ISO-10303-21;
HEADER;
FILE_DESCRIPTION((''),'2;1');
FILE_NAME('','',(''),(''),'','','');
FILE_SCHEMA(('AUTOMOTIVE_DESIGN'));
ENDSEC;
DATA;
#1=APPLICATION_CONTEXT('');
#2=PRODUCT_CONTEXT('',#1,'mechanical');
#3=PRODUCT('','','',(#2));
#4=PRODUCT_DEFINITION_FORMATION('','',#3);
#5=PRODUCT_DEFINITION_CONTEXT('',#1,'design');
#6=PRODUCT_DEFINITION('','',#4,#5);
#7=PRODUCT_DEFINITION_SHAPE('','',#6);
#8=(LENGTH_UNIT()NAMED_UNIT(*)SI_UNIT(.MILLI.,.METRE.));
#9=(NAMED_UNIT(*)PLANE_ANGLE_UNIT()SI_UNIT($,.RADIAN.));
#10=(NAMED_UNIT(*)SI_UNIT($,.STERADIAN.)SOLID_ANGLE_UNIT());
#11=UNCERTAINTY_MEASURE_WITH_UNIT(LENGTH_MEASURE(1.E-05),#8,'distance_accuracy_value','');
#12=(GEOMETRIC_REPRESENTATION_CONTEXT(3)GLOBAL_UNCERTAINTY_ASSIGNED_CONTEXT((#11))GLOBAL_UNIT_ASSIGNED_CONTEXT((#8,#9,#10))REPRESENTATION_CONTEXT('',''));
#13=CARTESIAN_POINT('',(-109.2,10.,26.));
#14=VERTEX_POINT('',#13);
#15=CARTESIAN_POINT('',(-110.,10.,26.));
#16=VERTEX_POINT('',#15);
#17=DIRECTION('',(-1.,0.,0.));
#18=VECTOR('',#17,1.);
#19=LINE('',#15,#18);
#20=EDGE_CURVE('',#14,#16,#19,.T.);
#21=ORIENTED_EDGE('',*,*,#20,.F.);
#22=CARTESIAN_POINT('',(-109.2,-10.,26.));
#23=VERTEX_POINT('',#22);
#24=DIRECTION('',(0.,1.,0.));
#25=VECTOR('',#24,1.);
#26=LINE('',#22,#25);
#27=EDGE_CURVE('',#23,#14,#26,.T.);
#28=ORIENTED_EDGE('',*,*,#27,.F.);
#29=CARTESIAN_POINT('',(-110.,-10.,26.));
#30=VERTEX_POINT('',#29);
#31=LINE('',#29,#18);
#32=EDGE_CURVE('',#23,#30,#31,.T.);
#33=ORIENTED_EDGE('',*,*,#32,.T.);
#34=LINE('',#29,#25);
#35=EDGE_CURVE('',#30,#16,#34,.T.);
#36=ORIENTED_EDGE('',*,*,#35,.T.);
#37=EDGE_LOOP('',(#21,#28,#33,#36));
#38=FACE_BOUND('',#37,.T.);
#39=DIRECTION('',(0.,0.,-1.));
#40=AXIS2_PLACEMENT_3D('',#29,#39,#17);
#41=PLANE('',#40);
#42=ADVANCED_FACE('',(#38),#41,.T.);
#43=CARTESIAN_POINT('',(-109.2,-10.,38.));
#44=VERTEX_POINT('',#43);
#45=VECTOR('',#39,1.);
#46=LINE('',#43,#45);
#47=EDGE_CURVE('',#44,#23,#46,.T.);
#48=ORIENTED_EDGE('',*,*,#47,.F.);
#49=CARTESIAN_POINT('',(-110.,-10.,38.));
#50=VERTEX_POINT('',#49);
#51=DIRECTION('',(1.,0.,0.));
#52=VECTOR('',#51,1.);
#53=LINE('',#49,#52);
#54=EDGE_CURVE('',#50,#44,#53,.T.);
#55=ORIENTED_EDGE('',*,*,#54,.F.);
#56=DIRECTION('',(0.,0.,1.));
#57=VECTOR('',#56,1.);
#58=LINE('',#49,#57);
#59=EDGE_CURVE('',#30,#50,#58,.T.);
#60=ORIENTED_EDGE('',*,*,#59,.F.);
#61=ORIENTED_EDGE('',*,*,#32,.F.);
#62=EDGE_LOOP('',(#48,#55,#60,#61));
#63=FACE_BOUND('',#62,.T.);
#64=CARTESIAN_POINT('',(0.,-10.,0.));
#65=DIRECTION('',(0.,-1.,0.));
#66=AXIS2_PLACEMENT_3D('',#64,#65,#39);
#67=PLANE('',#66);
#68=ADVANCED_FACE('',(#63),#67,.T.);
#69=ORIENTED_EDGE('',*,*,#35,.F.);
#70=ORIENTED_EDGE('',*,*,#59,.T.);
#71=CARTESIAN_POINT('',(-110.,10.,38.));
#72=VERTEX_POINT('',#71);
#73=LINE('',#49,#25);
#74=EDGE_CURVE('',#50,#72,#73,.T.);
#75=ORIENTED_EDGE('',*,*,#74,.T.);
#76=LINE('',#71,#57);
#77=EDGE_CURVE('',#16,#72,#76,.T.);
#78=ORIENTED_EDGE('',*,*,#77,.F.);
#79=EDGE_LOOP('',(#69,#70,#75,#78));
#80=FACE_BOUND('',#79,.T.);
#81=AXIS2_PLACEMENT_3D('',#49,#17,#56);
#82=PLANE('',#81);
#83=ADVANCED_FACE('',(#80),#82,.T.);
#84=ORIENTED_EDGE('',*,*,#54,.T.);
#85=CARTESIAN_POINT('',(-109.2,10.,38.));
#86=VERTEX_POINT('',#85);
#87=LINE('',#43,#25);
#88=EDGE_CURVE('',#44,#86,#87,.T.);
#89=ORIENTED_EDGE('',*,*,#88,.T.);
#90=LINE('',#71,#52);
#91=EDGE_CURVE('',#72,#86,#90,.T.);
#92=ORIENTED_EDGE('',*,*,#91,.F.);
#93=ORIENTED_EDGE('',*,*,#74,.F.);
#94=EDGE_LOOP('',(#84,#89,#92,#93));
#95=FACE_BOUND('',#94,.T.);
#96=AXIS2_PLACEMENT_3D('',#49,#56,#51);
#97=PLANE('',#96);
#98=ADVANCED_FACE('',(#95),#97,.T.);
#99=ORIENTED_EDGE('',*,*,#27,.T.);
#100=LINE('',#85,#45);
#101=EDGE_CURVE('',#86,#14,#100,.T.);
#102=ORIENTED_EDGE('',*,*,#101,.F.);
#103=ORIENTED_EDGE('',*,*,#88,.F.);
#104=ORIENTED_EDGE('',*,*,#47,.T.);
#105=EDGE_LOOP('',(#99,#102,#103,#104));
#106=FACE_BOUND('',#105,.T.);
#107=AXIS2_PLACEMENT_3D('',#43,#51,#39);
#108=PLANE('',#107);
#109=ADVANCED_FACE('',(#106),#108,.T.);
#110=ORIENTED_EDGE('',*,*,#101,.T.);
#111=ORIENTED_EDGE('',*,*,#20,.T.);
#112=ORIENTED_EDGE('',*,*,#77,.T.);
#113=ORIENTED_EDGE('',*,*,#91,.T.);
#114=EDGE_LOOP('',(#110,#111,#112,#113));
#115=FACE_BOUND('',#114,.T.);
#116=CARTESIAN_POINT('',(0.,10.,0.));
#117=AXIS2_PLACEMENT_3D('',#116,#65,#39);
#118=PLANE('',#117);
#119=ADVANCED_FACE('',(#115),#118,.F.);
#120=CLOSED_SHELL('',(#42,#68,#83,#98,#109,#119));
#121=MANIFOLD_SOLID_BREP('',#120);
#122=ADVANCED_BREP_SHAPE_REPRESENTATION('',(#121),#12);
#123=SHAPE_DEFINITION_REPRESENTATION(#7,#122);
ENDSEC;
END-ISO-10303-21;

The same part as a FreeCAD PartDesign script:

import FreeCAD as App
import Part
import Sketcher
from FreeCAD import Vector


def add_polygon(sketch, points):
    """Adds a closed chain of lines whose ends are joined by coincident constraints."""
    first, n = sketch.GeometryCount, len(points)
    for a, b in zip(points, points[1:] + points[:1]):
        sketch.addGeometry(Part.LineSegment(App.Vector(*a, 0), App.Vector(*b, 0)), False)
    for i in range(n):
        sketch.addConstraint(Sketcher.Constraint("Coincident", first + i, 2, first + (i + 1) % n, 1))

doc = App.newDocument("Part")
body = doc.addObject("PartDesign::Body", "Body")

sketch1 = body.newObject("Sketcher::SketchObject", "Sketch")
sketch1.AttachmentSupport = (doc.getObject("XZ_Plane"), [""])
sketch1.MapMode = "FlatFace"
add_polygon(sketch1, [(-110, 26), (-110, 38), (-109.2, 38), (-109.2, 26)])
sketch1.addConstraint(Sketcher.Constraint("Vertical", 0))
sketch1.addConstraint(Sketcher.Constraint("Horizontal", 1))
sketch1.addConstraint(Sketcher.Constraint("Vertical", 2))
sketch1.addConstraint(Sketcher.Constraint("Horizontal", 3))
sketch1.addConstraint(Sketcher.Constraint("DistanceY", 0, 1, 0, 2, 12.0))
sketch1.addConstraint(Sketcher.Constraint("DistanceX", 1, 1, 1, 2, 0.8))
sketch1.addConstraint(Sketcher.Constraint("DistanceX", 0, 2, -1, 1, 110.0))
sketch1.addConstraint(Sketcher.Constraint("DistanceY", -1, 1, 0, 2, 38.0))
pad1 = body.newObject("PartDesign::Pad", "Pad")
pad1.Profile = sketch1
pad1.Type = "TwoLengths"
pad1.Length = 10
pad1.Length2 = 10
pad1.Reversed = True

doc.recompute()
